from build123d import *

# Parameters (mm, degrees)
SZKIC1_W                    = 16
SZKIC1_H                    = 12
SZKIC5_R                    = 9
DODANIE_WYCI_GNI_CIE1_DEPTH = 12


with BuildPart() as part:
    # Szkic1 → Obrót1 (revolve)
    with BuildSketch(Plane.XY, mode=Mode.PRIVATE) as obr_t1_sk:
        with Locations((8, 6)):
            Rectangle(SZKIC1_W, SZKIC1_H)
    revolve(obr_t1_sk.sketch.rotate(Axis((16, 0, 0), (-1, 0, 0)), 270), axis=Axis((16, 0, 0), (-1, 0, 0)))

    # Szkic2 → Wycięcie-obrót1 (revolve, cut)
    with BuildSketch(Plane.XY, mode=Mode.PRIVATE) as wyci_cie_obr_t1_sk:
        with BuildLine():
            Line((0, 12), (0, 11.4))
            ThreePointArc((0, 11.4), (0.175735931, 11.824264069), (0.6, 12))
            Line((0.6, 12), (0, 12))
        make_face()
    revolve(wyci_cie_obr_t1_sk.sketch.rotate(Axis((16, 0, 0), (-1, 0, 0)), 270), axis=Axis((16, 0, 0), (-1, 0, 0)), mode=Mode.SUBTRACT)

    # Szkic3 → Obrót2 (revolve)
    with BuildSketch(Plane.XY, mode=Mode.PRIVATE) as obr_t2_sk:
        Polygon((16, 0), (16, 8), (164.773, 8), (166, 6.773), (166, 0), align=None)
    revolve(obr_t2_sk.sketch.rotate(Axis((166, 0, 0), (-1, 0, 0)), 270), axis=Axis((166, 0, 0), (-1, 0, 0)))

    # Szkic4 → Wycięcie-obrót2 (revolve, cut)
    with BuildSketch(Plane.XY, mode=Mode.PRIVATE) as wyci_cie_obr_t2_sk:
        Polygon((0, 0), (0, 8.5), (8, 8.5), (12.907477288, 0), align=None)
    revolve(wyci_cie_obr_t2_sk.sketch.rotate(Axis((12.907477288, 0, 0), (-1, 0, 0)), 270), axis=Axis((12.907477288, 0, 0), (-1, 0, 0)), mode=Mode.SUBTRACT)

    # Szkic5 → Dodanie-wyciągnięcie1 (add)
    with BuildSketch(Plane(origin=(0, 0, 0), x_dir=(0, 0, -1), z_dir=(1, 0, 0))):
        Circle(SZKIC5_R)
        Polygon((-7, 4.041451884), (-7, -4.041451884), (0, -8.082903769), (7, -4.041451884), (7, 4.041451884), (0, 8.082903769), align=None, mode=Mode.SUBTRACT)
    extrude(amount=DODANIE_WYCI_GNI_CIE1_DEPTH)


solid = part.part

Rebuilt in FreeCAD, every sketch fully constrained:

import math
import FreeCAD as App
import Part
import Sketcher
Q = App.Units.Quantity


def add_polygon(sketch, points):
    """Adds a closed chain of lines whose ends are joined by coincident constraints."""
    first, n = sketch.GeometryCount, len(points)
    for a, b in zip(points, points[1:] + points[:1]):
        sketch.addGeometry(Part.LineSegment(App.Vector(*a, 0), App.Vector(*b, 0)), False)
    for i in range(n):
        sketch.addConstraint(Sketcher.Constraint("Coincident", first + i, 2, first + (i + 1) % n, 1))

doc = App.newDocument("Part")
body = doc.addObject("PartDesign::Body", "Body")

sketch1 = body.newObject("Sketcher::SketchObject", "Sketch")
sketch1.AttachmentSupport = (doc.getObject("XY_Plane"), [""])
sketch1.MapMode = "FlatFace"
add_polygon(sketch1, [(0, 12), (0, 0), (16, 0), (16, 12)])
sketch1.addConstraint([
    Sketcher.Constraint("Vertical", 0),
    Sketcher.Constraint("Horizontal", 1),
    Sketcher.Constraint("Vertical", 2),
    Sketcher.Constraint("Horizontal", 3),
    Sketcher.Constraint("Coincident", 0, 2, -1, 1),
    Sketcher.Constraint("DistanceX", 1, 1, 1, 2, 16.0),
    Sketcher.Constraint("DistanceY", 0, 2, 0, 1, 12.0),
])
revolution = body.newObject("PartDesign::Revolution", "Revolution")
revolution.Profile = sketch1
revolution.ReferenceAxis = (sketch1, ["H_Axis"])
revolution.Angle = 360

sketch2 = body.newObject("Sketcher::SketchObject", "Sketch001")
sketch2.AttachmentSupport = (doc.getObject("XY_Plane"), [""])
sketch2.MapMode = "FlatFace"
sketch2.addGeometry([
    Part.LineSegment(App.Vector(0, 12, 0), App.Vector(0, 11.4, 0)),
    Part.ArcOfCircle(Part.Circle(App.Vector(0.6, 11.4, 0), App.Vector(0, 0, 1), 0.6), math.radians(90), math.radians(180)),
    Part.LineSegment(App.Vector(0.6, 12, 0), App.Vector(0, 12, 0)),
], False)
sketch2.addConstraint([
    Sketcher.Constraint("Tangent", 0, 2, 1, 2),
    Sketcher.Constraint("Tangent", 1, 1, 2, 1),
    Sketcher.Constraint("Coincident", 2, 2, 0, 1),
    Sketcher.Constraint("Vertical", 0),
    Sketcher.Constraint("Horizontal", 2),
    Sketcher.Constraint("PointOnObject", 0, 2, -2),
    Sketcher.Constraint("Radius", 1, 0.6),
    Sketcher.Constraint("DistanceY", -1, 1, 1, 1, 12.0),
])
groove = body.newObject("PartDesign::Groove", "Groove")
groove.Profile = sketch2
groove.ReferenceAxis = (sketch2, ["H_Axis"])
groove.Angle = 360

sketch3 = body.newObject("Sketcher::SketchObject", "Sketch002")
sketch3.AttachmentSupport = (doc.getObject("XY_Plane"), [""])
sketch3.MapMode = "FlatFace"
add_polygon(sketch3, [(16, 8), (16, 0), (166, 0), (166, 6.8), (164.8, 8)])
sketch3.addConstraint([
    Sketcher.Constraint("Vertical", 0),
    Sketcher.Constraint("Horizontal", 1),
    Sketcher.Constraint("Vertical", 2),
    Sketcher.Constraint("Horizontal", 4),
    Sketcher.Constraint("PointOnObject", 0, 2, -1),
    Sketcher.Constraint("DistanceX", 1, 1, 1, 2, 150.0),
    Sketcher.Constraint("DistanceY", 0, 2, 0, 1, 8.0),
    Sketcher.Constraint("Angle", 3, Q("135 deg")),
    Sketcher.Constraint("DistanceX", -1, 1, 0, 2, 16.0),
    Sketcher.Constraint("DistanceX", 4, 2, 4, 1, 148.773),
])
revolution2 = body.newObject("PartDesign::Revolution", "Revolution001")
revolution2.Profile = sketch3
revolution2.ReferenceAxis = (sketch3, ["H_Axis"])
revolution2.Angle = 360

sketch4 = body.newObject("Sketcher::SketchObject", "Sketch003")
sketch4.AttachmentSupport = (doc.getObject("XY_Plane"), [""])
sketch4.MapMode = "FlatFace"
add_polygon(sketch4, [(0, 8), (0, 0), (13, 0), (8, 8)])
sketch4.addConstraint([
    Sketcher.Constraint("Vertical", 0),
    Sketcher.Constraint("Horizontal", 1),
    Sketcher.Constraint("Horizontal", 3),
    Sketcher.Constraint("Coincident", 0, 2, -1, 1),
    Sketcher.Constraint("DistanceX", 3, 2, 3, 1, 8.0),
    Sketcher.Constraint("Angle", 2, Q("120 deg")),
    Sketcher.Constraint("DistanceY", 0, 2, 0, 1, 8.5),
])
groove2 = body.newObject("PartDesign::Groove", "Groove001")
groove2.Profile = sketch4
groove2.ReferenceAxis = (sketch4, ["H_Axis"])
groove2.Angle = 360

sketch5 = body.newObject("Sketcher::SketchObject", "Sketch004")
sketch5.AttachmentSupport = (doc.getObject("YZ_Plane"), [""])
sketch5.MapMode = "FlatFace"
sketch5.addGeometry(Part.Circle(App.Vector(0, 0, 0), App.Vector(0, 0, 1), 9), False)
add_polygon(sketch5, [(-4, 7), (4, 7), (8, 0), (4, -7), (-4, -7), (-8, 0)])
sketch5.addConstraint([
    Sketcher.Constraint("Horizontal", 1),
    Sketcher.Constraint("Horizontal", 4),
    Sketcher.Constraint("Coincident", 0, 3, -1, 1),
    Sketcher.Constraint("Symmetric", 1, 2, 4, 2, -1, 1),
    Sketcher.Constraint("Symmetric", 2, 2, 5, 2, -1, 1),
    Sketcher.Constraint("PointOnObject", 2, 2, -1),
    Sketcher.Constraint("Parallel", 3, 6),
    Sketcher.Constraint("Vertical", 1, 2, 3, 2),
    Sketcher.Constraint("Diameter", 0, 18.0),
    Sketcher.Constraint("Angle", 2, Q("-60 deg")),
    Sketcher.Constraint("DistanceY", -1, 1, 1, 2, 7.0),
    Sketcher.Constraint("DistanceX", 1, 1, 1, 2, 8.082904),
])
pad1 = body.newObject("PartDesign::Pad", "Pad")
pad1.Profile = sketch5
pad1.Length = 12

doc.recompute()
